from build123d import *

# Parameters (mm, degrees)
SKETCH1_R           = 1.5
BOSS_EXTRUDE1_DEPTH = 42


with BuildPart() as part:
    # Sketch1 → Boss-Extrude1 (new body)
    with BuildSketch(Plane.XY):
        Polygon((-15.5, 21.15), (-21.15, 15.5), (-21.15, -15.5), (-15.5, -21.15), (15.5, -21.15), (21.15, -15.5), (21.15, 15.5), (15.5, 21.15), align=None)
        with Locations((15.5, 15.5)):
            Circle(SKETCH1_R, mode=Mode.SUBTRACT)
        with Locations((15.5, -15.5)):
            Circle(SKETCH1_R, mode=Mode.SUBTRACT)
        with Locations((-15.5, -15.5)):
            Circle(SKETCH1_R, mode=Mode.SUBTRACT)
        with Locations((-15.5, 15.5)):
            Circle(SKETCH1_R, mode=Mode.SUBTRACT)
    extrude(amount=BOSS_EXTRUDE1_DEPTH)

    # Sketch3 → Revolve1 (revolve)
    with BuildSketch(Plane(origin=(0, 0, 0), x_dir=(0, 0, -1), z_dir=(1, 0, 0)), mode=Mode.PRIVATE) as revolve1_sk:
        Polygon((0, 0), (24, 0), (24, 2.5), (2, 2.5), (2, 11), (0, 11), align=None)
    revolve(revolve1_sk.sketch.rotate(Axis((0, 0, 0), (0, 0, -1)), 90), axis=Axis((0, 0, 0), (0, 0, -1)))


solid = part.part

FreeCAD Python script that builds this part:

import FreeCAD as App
import Part
import Sketcher

doc = App.newDocument("Part")
params = doc.addObject("Spreadsheet::Sheet", "Params")
for row, (alias, value) in enumerate([
    ("sketch1_diameter", "3 mm"),
    ("sketch1_width", "31 mm"),
    ("pad1_length", "42 mm"),
    ("sketch2_width", "11 mm"),
    ("sketch2_height", "24 mm"),
    ("sketch2_height2", "22 mm"),
    ("sketch2_width2", "2.5 mm"),
    ("revolution_angle", "360 deg"),
], start=1):
    params.set(f"A{row}", alias)
    params.set(f"B{row}", "=" + value)
    params.setAlias(f"B{row}", alias)

body = doc.addObject("PartDesign::Body", "Body")

# Sketch on XY plane
sketch1 = body.newObject("Sketcher::SketchObject", "Sketch")
sketch1.AttachmentSupport = (doc.getObject("XY_Plane"), [""])
sketch1.MapMode = "FlatFace"
sketch1.addGeometry(Part.LineSegment(App.Vector(-15.5, 21.1, 0), App.Vector(-21.1, 15.5, 0)), False)
sketch1.addGeometry(Part.LineSegment(App.Vector(-21.1, 15.5, 0), App.Vector(-21.1, -15.5, 0)), False)
sketch1.addGeometry(Part.LineSegment(App.Vector(-21.1, -15.5, 0), App.Vector(-15.5, -21.1, 0)), False)
sketch1.addGeometry(Part.LineSegment(App.Vector(-15.5, -21.1, 0), App.Vector(15.5, -21.1, 0)), False)
sketch1.addGeometry(Part.LineSegment(App.Vector(15.5, -21.1, 0), App.Vector(21.1, -15.5, 0)), False)
sketch1.addGeometry(Part.LineSegment(App.Vector(21.1, -15.5, 0), App.Vector(21.1, 15.5, 0)), False)
sketch1.addGeometry(Part.LineSegment(App.Vector(21.1, 15.5, 0), App.Vector(15.5, 21.1, 0)), False)
sketch1.addGeometry(Part.LineSegment(App.Vector(15.5, 21.1, 0), App.Vector(-15.5, 21.1, 0)), False)
sketch1.addGeometry(Part.Circle(App.Vector(-15.5, -15.5, 0), App.Vector(0, 0, 1), 1.5), False)
sketch1.addGeometry(Part.Circle(App.Vector(15.5, -15.5, 0), App.Vector(0, 0, 1), 1.5), False)
sketch1.addGeometry(Part.Circle(App.Vector(-15.5, 15.5, 0), App.Vector(0, 0, 1), 1.5), False)
sketch1.addGeometry(Part.Circle(App.Vector(15.5, 15.5, 0), App.Vector(0, 0, 1), 1.5), False)
sketch1.addConstraint(Sketcher.Constraint("Coincident", 0, 2, 1, 1))
sketch1.addConstraint(Sketcher.Constraint("Coincident", 1, 2, 2, 1))
sketch1.addConstraint(Sketcher.Constraint("Coincident", 2, 2, 3, 1))
sketch1.addConstraint(Sketcher.Constraint("Coincident", 3, 2, 4, 1))
sketch1.addConstraint(Sketcher.Constraint("Coincident", 4, 2, 5, 1))
sketch1.addConstraint(Sketcher.Constraint("Coincident", 5, 2, 6, 1))
sketch1.addConstraint(Sketcher.Constraint("Coincident", 6, 2, 7, 1))
sketch1.addConstraint(Sketcher.Constraint("Coincident", 7, 2, 0, 1))
sketch1.addConstraint(Sketcher.Constraint("Vertical", 1))
sketch1.addConstraint(Sketcher.Constraint("Horizontal", 3))
sketch1.addConstraint(Sketcher.Constraint("Vertical", 5))
sketch1.addConstraint(Sketcher.Constraint("Horizontal", 7))
sketch1.addConstraint(Sketcher.Constraint("Equal", 8, 9))
sketch1.addConstraint(Sketcher.Constraint("Equal", 9, 10))
sketch1.addConstraint(Sketcher.Constraint("Equal", 10, 11))
sketch1.addConstraint(Sketcher.Constraint("Symmetric", 9, 3, 10, 3, -1, 1))
sketch1.addConstraint(Sketcher.Constraint("Symmetric", 8, 3, 11, 3, -1, 1))
sketch1.addConstraint(Sketcher.Constraint("Symmetric", 0, 2, 4, 2, -1, 1))
sketch1.addConstraint(Sketcher.Constraint("Symmetric", 2, 2, 6, 2, -1, 1))
sketch1.addConstraint(Sketcher.Constraint("Symmetric", 8, 3, 9, 3, -2))
sketch1.addConstraint(Sketcher.Constraint("Perpendicular", 0, 2))
sketch1.addConstraint(Sketcher.Constraint("Perpendicular", 2, 4))
sketch1.addConstraint(Sketcher.Constraint("Perpendicular", 4, 6))
sketch1.addConstraint(Sketcher.Constraint("Horizontal", 11, 3, 0, 2))
sketch1.addConstraint(Sketcher.Constraint("Horizontal", 9, 3, 1, 2))
sketch1.addConstraint(Sketcher.Constraint("Vertical", 10, 3, 2, 2))
sketch1.addConstraint(Sketcher.Constraint("Vertical", 11, 3, 3, 2))
sketch1.addConstraint(Sketcher.Constraint("Equal", 7, 1))
sketch1.addConstraint(Sketcher.Constraint("Diameter", 8, 3.0))
sketch1.addConstraint(Sketcher.Constraint("DistanceX", 3, 1, 3, 2, 31.0))
sketch1.addConstraint(Sketcher.Constraint("DistanceX", 0, 2, -1, 1, 21.15))
sketch1.setExpression("Constraints[28]", "Params.sketch1_diameter")
sketch1.setExpression("Constraints[29]", "Params.sketch1_width")
pad1 = body.newObject("PartDesign::Pad", "Pad")
pad1.Profile = sketch1
pad1.setExpression("Length", "Params.pad1_length")

# Sketch on YZ plane
sketch2 = body.newObject("Sketcher::SketchObject", "Sketch001")
sketch2.AttachmentSupport = (doc.getObject("YZ_Plane"), [""])
sketch2.MapMode = "FlatFace"
sketch2.addGeometry(Part.LineSegment(App.Vector(0, 0, 0), App.Vector(0, -24, 0)), False)
sketch2.addGeometry(Part.LineSegment(App.Vector(0, -24, 0), App.Vector(2.5, -24, 0)), False)
sketch2.addGeometry(Part.LineSegment(App.Vector(2.5, -24, 0), App.Vector(2.5, -2, 0)), False)
sketch2.addGeometry(Part.LineSegment(App.Vector(2.5, -2, 0), App.Vector(11, -2, 0)), False)
sketch2.addGeometry(Part.LineSegment(App.Vector(11, -2, 0), App.Vector(11, 0, 0)), False)
sketch2.addGeometry(Part.LineSegment(App.Vector(11, 0, 0), App.Vector(0, 0, 0)), False)
sketch2.addConstraint(Sketcher.Constraint("Coincident", 0, 2, 1, 1))
sketch2.addConstraint(Sketcher.Constraint("Coincident", 1, 2, 2, 1))
sketch2.addConstraint(Sketcher.Constraint("Coincident", 2, 2, 3, 1))
sketch2.addConstraint(Sketcher.Constraint("Coincident", 3, 2, 4, 1))
sketch2.addConstraint(Sketcher.Constraint("Coincident", 4, 2, 5, 1))
sketch2.addConstraint(Sketcher.Constraint("Coincident", 5, 2, 0, 1))
sketch2.addConstraint(Sketcher.Constraint("Vertical", 0))
sketch2.addConstraint(Sketcher.Constraint("Horizontal", 1))
sketch2.addConstraint(Sketcher.Constraint("Vertical", 2))
sketch2.addConstraint(Sketcher.Constraint("Horizontal", 3))
sketch2.addConstraint(Sketcher.Constraint("Vertical", 4))
sketch2.addConstraint(Sketcher.Constraint("Horizontal", 5))
sketch2.addConstraint(Sketcher.Constraint("Coincident", 5, 2, -1, 1))
sketch2.addConstraint(Sketcher.Constraint("DistanceX", 5, 2, 5, 1, 11.0))
sketch2.addConstraint(Sketcher.Constraint("DistanceY", 0, 2, 0, 1, 24.0))
sketch2.addConstraint(Sketcher.Constraint("DistanceY", 2, 1, 2, 2, 22.0))
sketch2.addConstraint(Sketcher.Constraint("DistanceX", 1, 1, 1, 2, 2.5))
sketch2.setExpression("Constraints[13]", "Params.sketch2_width")
sketch2.setExpression("Constraints[14]", "Params.sketch2_height")
sketch2.setExpression("Constraints[15]", "Params.sketch2_height2")
sketch2.setExpression("Constraints[16]", "Params.sketch2_width2")
revolution = body.newObject("PartDesign::Revolution", "Revolution")
revolution.Profile = sketch2
revolution.ReferenceAxis = (sketch2, ["V_Axis"])
revolution.setExpression("Angle", "Params.revolution_angle")

doc.recompute()
